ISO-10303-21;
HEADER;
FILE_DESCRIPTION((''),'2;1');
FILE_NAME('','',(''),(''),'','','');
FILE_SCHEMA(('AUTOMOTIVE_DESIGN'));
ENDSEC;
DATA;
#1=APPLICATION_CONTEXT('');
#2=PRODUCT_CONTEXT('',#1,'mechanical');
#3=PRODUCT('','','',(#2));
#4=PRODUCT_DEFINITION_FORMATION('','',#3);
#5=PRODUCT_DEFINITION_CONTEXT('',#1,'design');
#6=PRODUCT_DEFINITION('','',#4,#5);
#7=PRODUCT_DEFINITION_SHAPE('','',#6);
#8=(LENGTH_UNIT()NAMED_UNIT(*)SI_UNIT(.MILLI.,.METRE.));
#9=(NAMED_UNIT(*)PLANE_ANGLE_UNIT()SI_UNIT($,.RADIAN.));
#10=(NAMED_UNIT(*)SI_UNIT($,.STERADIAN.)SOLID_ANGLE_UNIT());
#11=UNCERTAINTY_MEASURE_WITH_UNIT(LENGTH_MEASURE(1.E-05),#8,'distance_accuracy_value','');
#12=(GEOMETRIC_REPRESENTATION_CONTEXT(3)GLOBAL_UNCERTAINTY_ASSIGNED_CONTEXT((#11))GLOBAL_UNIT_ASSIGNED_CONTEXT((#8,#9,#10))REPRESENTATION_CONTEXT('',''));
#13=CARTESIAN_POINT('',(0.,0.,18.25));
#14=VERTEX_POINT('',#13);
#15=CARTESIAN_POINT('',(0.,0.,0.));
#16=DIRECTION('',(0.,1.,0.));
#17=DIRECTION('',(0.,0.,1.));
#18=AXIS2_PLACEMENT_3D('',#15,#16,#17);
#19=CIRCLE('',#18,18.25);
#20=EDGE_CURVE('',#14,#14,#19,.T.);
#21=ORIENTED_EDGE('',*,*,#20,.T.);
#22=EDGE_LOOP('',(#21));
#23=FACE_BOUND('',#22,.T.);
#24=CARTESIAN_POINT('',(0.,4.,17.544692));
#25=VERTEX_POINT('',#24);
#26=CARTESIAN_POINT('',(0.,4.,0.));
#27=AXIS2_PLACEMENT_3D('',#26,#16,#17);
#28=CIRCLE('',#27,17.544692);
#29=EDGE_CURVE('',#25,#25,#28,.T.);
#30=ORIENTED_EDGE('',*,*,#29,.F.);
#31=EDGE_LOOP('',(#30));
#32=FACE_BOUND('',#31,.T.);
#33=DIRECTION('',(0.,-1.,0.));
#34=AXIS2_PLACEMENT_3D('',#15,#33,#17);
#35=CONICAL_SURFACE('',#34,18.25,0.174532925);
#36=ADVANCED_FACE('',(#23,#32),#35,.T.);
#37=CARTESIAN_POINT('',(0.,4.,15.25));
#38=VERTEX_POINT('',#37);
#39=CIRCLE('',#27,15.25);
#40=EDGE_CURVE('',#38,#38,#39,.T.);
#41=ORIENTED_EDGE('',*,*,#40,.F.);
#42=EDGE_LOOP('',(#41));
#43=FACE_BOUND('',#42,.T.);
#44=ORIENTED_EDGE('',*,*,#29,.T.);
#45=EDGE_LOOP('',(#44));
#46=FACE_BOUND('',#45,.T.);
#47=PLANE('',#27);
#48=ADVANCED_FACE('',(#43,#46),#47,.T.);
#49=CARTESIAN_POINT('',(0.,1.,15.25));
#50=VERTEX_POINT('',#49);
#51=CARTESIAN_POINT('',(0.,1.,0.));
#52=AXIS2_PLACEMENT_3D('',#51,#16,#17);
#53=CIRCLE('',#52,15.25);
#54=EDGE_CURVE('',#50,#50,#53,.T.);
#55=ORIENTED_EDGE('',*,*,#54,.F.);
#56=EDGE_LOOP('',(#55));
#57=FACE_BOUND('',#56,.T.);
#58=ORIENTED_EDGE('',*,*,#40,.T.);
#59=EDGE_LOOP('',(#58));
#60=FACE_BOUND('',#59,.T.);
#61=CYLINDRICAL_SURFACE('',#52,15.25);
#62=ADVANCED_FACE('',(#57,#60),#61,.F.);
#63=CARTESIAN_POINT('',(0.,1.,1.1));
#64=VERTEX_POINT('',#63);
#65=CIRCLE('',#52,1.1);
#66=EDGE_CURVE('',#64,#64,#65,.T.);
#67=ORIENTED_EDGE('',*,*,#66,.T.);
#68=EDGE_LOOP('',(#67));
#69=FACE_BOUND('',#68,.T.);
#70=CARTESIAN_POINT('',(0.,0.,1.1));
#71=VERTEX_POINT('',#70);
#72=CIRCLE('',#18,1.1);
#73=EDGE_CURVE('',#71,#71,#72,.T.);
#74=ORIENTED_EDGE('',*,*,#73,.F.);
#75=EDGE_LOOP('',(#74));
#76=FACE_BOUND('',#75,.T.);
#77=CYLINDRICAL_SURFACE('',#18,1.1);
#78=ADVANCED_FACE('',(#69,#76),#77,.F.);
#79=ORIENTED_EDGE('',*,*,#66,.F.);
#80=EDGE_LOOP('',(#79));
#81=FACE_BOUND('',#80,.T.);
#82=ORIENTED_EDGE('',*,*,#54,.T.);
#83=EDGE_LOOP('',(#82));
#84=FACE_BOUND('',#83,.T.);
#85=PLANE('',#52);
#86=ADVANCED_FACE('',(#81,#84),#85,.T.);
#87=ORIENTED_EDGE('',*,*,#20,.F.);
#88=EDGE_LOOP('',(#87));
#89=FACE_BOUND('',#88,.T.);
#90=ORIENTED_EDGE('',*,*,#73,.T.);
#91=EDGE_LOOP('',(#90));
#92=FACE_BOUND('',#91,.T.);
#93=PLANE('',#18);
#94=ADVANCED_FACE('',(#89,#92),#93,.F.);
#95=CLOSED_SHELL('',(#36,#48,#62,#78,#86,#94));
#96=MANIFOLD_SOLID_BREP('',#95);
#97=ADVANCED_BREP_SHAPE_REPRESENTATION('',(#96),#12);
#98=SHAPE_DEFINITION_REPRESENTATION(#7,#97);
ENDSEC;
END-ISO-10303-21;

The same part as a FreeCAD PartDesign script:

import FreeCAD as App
import Part
import Sketcher

V = App.Vector
Q = App.Units.Quantity

doc = App.newDocument("Part")
body = doc.addObject("PartDesign::Body", "Body")

sketch1 = doc.addObject("Sketcher::SketchObject", "Sketch")
body.addObject(sketch1)
sketch1.AttachmentSupport = (doc.XZ_Plane, [""])
sketch1.MapMode = "FlatFace"
sketch1.addGeometry(Part.Circle(V(0, 0, 0), V(0, 0, 1), 18), False)
sketch1.addConstraint(Sketcher.Constraint("Coincident", 0, 3, -1, 1))
sketch1.addConstraint(Sketcher.Constraint("Diameter", 0, Q("36.5 mm")))
pad1 = doc.addObject("PartDesign::Pad", "Pad")
body.addObject(pad1)
pad1.Profile = sketch1
pad1.Length = 4
pad1.Reversed = True
pad1.TaperAngle = -10

sketch2 = doc.addObject("Sketcher::SketchObject", "Sketch001")
body.addObject(sketch2)
sketch2.AttachmentSupport = (doc.XZ_Plane, [""])
sketch2.MapMode = "FlatFace"
sketch2.AttachmentOffset = App.Placement(V(0, 0, -4), App.Rotation())
sketch2.addGeometry(Part.Circle(V(0, 0, 0), V(0, 0, 1), 1.1), False)
sketch2.addConstraint(Sketcher.Constraint("Coincident", 0, 3, -1, 1))
sketch2.addConstraint(Sketcher.Constraint("Diameter", 0, Q("2.2 mm")))
pocket1 = doc.addObject("PartDesign::Pocket", "Pocket")
body.addObject(pocket1)
pocket1.Profile = sketch2
pocket1.Length = 4
pocket1.Reversed = True

sketch3 = doc.addObject("Sketcher::SketchObject", "Sketch002")
body.addObject(sketch3)
sketch3.AttachmentSupport = (doc.XZ_Plane, [""])
sketch3.MapMode = "FlatFace"
sketch3.AttachmentOffset = App.Placement(V(0, 0, -4), App.Rotation())
sketch3.addGeometry(Part.Circle(V(0, 0, 0), V(0, 0, 1), 15), False)
sketch3.addConstraint(Sketcher.Constraint("Coincident", 0, 3, -1, 1))
sketch3.addConstraint(Sketcher.Constraint("Diameter", 0, Q("30.5 mm")))
pocket2 = doc.addObject("PartDesign::Pocket", "Pocket001")
body.addObject(pocket2)
pocket2.Profile = sketch3
pocket2.Length = 3
pocket2.Reversed = True

doc.recompute()
